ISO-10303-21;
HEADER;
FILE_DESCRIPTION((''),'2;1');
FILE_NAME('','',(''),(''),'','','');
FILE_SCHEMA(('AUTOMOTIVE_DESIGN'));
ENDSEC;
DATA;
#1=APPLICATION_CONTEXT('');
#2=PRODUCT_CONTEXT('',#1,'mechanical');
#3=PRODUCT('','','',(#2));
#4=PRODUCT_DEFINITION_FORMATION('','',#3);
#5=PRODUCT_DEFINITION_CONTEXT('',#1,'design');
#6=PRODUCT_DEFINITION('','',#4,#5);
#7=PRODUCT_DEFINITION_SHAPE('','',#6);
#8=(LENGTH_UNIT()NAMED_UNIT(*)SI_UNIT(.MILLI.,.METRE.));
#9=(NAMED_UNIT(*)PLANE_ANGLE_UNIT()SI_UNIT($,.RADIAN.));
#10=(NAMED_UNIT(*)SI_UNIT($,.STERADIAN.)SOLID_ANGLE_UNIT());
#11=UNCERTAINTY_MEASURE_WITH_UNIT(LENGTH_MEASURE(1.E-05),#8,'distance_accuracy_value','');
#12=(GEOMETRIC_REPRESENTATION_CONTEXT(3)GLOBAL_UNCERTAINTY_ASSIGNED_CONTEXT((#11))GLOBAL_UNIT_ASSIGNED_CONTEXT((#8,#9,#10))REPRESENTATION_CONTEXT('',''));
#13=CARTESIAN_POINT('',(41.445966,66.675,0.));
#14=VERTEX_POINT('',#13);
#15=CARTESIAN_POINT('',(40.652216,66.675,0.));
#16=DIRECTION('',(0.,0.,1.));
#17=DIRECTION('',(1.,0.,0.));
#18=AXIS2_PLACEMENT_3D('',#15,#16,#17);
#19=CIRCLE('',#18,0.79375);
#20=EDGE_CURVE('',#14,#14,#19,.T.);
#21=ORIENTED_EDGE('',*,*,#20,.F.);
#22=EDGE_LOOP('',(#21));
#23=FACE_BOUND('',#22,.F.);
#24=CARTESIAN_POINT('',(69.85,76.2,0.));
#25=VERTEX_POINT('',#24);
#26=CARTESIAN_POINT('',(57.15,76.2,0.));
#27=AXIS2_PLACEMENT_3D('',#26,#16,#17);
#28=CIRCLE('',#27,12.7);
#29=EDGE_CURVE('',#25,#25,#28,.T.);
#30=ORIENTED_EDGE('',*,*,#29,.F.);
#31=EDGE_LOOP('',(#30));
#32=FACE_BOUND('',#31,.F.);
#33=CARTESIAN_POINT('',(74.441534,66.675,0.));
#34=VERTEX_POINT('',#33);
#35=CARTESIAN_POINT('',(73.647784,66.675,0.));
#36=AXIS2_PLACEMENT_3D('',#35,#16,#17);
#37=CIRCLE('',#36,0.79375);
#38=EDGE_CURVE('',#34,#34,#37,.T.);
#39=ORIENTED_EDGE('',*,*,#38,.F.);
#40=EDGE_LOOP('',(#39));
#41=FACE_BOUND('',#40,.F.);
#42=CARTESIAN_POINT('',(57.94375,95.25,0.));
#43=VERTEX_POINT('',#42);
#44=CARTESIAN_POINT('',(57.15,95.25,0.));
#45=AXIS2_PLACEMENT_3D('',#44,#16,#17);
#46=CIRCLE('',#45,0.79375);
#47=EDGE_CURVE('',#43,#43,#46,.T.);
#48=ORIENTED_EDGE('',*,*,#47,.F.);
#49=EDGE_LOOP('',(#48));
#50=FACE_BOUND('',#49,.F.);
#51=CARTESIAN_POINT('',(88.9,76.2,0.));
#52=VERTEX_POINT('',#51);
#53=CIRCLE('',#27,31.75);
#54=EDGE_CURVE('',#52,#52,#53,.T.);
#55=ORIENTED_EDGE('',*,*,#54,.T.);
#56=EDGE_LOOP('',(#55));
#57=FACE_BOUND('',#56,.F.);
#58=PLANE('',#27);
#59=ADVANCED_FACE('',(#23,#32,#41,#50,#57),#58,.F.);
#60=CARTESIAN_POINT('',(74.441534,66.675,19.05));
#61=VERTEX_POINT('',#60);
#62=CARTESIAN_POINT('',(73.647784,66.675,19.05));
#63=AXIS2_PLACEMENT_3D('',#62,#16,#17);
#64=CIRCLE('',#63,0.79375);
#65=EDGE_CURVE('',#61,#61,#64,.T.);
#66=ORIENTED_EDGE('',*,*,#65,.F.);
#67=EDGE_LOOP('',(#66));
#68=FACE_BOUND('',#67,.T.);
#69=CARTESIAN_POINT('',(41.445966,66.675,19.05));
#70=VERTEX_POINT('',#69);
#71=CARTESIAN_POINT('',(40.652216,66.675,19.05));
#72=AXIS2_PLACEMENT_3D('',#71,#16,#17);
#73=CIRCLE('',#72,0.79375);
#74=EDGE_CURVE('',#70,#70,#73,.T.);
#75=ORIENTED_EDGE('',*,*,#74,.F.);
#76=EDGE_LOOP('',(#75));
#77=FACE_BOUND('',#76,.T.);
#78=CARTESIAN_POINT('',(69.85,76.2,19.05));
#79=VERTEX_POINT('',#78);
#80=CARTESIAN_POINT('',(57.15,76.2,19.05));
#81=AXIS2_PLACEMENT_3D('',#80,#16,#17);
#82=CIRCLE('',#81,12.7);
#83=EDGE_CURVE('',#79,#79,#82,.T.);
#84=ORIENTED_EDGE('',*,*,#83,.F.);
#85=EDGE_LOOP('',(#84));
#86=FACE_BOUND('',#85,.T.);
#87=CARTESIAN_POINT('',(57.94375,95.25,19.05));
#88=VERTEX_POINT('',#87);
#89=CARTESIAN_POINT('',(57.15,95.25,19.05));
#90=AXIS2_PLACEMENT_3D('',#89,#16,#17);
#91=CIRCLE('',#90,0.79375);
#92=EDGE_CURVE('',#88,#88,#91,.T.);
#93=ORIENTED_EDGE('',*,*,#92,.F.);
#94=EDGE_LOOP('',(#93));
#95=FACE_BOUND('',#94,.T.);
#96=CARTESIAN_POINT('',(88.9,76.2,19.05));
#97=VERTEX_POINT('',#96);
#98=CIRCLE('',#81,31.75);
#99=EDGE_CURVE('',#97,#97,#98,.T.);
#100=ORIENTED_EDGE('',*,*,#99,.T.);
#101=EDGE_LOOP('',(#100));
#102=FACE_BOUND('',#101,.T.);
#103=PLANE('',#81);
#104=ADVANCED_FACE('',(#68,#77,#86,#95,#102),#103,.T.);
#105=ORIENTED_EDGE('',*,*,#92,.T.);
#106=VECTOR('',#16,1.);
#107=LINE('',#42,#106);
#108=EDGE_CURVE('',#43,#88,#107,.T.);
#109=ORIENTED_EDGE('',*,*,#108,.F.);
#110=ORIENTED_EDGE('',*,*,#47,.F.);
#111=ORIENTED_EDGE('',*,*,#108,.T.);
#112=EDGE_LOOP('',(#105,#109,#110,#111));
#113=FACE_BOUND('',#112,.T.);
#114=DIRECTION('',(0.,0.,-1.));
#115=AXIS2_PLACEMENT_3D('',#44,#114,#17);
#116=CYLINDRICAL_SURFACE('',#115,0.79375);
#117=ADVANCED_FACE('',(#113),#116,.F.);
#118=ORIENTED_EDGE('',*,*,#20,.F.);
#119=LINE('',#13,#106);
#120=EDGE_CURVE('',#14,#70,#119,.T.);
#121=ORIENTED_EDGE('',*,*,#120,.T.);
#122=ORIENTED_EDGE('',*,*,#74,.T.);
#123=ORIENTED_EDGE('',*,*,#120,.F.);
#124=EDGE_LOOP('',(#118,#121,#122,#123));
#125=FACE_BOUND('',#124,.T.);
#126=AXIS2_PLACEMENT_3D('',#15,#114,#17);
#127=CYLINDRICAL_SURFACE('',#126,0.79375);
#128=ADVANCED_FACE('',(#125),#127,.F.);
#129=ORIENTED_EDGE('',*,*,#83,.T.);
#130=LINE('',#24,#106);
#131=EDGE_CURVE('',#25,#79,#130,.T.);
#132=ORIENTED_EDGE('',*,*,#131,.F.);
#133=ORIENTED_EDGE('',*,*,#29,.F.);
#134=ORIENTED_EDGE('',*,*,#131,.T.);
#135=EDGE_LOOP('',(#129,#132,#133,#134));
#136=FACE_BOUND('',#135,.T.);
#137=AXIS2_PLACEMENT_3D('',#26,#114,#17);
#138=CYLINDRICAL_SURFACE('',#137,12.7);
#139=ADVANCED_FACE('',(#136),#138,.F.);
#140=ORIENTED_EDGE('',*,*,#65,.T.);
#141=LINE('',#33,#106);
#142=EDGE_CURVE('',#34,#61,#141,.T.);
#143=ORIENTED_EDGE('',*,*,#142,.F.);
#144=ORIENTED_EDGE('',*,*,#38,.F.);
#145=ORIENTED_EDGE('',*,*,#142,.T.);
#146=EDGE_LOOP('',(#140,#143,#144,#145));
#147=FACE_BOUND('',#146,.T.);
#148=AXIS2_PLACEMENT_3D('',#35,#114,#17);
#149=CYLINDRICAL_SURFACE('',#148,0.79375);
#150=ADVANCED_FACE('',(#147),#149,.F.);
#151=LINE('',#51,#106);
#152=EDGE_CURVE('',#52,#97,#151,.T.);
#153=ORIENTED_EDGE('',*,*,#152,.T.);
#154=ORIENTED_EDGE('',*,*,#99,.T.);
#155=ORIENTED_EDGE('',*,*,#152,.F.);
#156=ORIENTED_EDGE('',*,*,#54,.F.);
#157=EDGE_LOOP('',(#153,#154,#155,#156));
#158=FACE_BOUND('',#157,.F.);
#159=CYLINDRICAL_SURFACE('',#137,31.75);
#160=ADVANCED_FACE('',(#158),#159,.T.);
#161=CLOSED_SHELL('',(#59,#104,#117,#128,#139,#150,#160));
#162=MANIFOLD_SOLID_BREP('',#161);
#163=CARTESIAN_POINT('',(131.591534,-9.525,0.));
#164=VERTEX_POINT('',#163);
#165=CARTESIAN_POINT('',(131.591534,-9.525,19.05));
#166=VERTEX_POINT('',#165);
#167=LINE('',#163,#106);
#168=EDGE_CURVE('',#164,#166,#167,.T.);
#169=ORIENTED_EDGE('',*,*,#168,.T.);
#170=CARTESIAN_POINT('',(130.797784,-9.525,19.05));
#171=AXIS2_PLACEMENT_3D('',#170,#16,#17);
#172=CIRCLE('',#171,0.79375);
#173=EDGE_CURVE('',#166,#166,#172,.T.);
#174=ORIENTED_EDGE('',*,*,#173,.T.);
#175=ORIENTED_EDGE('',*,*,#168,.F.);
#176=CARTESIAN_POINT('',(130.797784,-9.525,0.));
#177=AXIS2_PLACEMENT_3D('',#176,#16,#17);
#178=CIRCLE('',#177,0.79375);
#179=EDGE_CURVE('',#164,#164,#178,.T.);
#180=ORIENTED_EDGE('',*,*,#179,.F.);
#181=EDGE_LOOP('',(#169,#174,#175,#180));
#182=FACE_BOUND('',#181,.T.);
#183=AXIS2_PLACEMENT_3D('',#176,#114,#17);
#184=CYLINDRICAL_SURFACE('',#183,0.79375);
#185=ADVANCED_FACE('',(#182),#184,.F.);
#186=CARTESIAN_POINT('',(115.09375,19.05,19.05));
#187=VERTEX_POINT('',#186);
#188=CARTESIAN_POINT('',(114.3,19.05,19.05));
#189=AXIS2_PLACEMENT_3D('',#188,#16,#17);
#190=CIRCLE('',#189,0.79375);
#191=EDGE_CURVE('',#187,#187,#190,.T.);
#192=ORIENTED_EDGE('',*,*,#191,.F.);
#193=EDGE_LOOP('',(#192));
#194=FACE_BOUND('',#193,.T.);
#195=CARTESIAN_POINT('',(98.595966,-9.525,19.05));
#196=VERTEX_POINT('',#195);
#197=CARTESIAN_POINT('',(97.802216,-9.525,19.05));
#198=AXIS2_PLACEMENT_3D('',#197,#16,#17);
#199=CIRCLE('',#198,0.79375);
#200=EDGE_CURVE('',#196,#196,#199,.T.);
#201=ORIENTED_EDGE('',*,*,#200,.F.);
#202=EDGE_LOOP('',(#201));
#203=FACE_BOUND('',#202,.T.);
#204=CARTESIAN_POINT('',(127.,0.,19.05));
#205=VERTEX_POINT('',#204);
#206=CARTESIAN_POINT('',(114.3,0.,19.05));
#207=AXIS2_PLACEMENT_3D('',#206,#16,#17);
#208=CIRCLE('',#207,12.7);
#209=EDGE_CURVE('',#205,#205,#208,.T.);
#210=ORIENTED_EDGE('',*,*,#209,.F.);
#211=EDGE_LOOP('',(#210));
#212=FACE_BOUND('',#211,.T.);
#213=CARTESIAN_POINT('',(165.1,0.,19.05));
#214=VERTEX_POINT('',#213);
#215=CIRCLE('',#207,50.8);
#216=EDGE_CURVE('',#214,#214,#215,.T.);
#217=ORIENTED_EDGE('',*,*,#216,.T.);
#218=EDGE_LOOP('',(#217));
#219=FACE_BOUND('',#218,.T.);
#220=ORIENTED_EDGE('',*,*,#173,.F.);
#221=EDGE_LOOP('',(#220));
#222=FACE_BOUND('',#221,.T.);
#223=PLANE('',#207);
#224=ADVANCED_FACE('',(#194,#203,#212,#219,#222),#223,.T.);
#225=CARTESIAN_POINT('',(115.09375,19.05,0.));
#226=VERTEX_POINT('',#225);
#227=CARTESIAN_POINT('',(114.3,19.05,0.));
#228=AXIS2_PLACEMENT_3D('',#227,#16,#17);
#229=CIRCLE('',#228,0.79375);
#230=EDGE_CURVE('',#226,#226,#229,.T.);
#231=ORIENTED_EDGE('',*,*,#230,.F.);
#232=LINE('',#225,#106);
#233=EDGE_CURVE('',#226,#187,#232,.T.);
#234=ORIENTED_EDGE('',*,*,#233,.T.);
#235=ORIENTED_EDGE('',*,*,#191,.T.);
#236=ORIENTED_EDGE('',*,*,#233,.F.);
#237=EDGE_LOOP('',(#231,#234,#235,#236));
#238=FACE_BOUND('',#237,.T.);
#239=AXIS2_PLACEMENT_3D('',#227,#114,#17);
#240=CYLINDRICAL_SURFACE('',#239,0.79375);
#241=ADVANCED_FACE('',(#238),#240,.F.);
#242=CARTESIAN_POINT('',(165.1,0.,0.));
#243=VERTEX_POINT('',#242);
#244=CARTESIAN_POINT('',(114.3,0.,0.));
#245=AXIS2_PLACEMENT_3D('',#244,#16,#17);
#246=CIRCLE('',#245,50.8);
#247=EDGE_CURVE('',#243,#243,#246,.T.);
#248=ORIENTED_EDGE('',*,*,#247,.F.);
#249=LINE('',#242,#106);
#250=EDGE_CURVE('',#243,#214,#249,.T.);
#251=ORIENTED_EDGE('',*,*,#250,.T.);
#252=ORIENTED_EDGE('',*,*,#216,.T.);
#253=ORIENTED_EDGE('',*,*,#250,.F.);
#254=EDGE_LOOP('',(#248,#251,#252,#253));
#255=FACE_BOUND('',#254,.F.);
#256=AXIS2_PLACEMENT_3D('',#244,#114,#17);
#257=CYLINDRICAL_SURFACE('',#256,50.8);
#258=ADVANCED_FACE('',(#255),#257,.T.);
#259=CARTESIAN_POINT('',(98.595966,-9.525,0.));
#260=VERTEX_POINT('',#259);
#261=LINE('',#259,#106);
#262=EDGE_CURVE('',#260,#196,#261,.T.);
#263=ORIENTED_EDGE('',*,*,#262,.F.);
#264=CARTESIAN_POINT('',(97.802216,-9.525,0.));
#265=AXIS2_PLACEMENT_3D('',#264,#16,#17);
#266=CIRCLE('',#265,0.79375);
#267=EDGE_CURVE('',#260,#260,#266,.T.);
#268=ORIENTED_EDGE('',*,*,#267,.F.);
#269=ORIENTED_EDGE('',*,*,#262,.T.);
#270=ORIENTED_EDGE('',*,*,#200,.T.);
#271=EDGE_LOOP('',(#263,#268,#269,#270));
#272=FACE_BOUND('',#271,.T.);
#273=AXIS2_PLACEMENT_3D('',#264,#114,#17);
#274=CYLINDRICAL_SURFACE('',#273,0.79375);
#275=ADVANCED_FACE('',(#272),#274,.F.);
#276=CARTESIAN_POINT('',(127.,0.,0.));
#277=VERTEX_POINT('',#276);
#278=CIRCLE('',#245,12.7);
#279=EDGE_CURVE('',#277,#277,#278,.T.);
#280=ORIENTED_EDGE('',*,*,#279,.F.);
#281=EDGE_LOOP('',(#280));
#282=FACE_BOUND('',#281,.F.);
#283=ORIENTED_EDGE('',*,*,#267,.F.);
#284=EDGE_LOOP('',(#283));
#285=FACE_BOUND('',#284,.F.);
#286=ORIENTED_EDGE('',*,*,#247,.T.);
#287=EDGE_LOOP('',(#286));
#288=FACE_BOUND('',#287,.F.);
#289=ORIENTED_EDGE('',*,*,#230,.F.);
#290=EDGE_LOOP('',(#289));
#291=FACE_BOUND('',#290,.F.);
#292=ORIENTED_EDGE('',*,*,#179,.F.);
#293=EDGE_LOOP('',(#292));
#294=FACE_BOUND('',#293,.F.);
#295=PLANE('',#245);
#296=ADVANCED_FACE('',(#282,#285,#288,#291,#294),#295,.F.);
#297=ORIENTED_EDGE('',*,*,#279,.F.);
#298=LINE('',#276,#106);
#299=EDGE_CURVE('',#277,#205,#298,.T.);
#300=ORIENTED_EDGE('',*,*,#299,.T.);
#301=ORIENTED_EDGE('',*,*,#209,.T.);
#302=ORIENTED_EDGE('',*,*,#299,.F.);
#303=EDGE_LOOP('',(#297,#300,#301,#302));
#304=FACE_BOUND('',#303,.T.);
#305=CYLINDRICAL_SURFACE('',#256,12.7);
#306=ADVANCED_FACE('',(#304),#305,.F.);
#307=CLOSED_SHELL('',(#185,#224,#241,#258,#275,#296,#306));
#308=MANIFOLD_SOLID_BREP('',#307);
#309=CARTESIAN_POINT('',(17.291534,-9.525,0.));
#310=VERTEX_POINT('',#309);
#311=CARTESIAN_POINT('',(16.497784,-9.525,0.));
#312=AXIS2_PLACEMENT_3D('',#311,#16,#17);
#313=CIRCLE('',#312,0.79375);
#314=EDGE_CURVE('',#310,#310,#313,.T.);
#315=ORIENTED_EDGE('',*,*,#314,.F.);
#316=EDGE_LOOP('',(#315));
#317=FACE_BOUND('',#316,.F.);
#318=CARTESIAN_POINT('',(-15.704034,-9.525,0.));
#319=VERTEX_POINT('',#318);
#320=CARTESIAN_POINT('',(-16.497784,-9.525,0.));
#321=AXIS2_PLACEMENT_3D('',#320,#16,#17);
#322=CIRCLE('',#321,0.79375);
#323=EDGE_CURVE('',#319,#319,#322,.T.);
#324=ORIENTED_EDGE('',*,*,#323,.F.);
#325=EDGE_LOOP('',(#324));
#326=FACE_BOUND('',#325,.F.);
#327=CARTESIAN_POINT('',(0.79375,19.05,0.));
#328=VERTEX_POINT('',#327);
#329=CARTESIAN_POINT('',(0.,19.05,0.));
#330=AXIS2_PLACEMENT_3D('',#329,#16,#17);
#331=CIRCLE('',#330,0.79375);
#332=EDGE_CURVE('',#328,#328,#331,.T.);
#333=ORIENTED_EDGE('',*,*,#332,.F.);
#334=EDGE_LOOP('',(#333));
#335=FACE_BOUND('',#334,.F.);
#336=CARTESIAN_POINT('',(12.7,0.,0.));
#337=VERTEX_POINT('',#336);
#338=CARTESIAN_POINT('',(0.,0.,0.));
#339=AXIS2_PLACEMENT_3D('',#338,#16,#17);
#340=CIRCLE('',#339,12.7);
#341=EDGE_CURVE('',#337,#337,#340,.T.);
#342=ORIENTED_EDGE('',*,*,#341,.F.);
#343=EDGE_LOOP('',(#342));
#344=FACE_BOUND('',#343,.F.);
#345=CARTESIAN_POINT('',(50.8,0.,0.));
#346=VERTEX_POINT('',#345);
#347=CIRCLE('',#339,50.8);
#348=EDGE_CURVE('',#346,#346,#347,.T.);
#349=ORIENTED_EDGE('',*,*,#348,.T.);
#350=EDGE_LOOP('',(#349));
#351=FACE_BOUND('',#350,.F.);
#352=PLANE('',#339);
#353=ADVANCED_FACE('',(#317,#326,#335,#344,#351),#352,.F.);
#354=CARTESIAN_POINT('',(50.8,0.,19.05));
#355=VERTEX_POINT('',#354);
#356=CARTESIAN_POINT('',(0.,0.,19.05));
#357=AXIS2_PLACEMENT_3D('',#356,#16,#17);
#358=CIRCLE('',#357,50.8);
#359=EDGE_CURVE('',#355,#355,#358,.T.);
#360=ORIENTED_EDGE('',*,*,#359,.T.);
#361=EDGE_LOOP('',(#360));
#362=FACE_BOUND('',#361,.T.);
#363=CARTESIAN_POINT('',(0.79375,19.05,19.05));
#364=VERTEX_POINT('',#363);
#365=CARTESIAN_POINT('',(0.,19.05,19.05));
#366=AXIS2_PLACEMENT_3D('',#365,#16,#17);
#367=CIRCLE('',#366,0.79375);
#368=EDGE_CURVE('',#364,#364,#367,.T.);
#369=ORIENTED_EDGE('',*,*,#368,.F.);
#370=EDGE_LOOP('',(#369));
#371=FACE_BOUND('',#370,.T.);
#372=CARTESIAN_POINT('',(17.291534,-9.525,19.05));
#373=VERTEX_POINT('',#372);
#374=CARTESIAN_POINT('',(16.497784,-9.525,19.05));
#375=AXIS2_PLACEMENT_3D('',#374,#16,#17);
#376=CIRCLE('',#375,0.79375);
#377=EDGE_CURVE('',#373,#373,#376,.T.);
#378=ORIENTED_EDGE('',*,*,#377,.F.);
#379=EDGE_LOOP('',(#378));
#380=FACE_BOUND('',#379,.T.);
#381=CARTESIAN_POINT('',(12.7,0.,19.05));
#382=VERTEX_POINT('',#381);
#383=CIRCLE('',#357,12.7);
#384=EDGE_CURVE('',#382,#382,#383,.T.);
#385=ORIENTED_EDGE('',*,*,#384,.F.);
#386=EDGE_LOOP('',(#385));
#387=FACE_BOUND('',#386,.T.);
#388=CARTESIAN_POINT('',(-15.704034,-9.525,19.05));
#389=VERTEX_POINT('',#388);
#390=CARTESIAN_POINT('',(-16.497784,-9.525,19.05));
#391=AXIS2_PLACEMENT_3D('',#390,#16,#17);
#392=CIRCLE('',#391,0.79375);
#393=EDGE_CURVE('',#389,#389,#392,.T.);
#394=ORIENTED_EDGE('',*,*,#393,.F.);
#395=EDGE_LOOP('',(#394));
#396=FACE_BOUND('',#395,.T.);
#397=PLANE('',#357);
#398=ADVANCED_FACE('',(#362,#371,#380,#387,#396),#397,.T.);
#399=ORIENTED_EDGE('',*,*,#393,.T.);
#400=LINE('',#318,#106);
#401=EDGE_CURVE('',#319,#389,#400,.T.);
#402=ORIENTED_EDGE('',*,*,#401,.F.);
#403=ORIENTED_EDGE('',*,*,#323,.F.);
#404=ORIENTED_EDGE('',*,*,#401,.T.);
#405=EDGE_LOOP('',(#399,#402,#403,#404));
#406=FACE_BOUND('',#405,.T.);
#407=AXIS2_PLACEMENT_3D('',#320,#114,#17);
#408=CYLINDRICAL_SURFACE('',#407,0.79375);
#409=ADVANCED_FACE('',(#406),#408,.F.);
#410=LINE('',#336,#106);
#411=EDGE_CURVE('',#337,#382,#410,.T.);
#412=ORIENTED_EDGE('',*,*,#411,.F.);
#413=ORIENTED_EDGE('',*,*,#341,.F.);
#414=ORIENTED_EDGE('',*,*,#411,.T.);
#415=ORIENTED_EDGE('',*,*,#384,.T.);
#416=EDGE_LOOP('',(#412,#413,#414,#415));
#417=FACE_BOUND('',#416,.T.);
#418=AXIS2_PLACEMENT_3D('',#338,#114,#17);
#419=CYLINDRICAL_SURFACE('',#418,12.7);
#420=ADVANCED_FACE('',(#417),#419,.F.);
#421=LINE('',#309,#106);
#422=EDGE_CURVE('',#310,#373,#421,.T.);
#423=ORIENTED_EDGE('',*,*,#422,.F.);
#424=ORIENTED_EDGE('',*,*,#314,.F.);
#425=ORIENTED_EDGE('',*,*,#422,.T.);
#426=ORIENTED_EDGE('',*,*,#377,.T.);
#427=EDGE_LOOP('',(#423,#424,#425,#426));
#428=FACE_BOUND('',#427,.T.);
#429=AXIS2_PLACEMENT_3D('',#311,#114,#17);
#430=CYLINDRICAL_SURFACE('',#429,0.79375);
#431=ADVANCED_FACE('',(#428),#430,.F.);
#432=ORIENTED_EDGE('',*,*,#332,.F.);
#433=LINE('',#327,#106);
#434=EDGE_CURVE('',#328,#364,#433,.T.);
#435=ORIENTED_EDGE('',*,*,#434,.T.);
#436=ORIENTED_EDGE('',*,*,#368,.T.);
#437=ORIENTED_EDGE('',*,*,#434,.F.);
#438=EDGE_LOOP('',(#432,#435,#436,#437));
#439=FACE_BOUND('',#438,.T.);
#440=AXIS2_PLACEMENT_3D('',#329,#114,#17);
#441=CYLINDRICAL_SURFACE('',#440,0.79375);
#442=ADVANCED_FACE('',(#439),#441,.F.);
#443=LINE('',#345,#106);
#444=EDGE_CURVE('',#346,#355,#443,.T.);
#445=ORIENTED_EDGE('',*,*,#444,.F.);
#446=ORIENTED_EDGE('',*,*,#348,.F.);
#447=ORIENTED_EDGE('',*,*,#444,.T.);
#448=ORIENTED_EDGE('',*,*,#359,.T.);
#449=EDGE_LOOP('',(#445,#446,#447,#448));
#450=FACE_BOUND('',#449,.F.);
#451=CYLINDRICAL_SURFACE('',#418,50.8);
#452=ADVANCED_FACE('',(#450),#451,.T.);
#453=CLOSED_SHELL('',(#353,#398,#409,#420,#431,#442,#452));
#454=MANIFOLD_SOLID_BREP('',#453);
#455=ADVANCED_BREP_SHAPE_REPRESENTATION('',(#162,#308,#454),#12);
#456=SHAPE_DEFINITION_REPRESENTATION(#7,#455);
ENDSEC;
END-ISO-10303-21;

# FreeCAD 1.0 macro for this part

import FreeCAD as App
import Part
import Sketcher
from FreeCAD import Vector
Q = App.Units.Quantity

doc = App.newDocument("Part")
body = doc.addObject("PartDesign::Body", "Body")
body.AllowCompound = True

# Sketch on XY plane
sketch1 = body.newObject("Sketcher::SketchObject", "Sketch")
sketch1.AttachmentSupport = (doc.getObject("XY_Plane"), [""])
sketch1.MapMode = "FlatFace"
sketch1.addGeometry([
    Part.Circle(Vector(0, 0, 0), Vector(0, 0, 1), 50.8),  # 0
    Part.Circle(Vector(-16.5, -9.5, 0), Vector(0, 0, 1), 0.8),  # 1
    Part.Circle(Vector(16.5, -9.5, 0), Vector(0, 0, 1), 0.8),  # 2
    Part.Circle(Vector(0, 0, 0), Vector(0, 0, 1), 12.7),  # 3
    Part.Circle(Vector(0, 19.1, 0), Vector(0, 0, 1), 0.8),  # 4
    Part.Circle(Vector(114.3, 0, 0), Vector(0, 0, 1), 50.8),  # 5
    Part.Circle(Vector(97.8, -9.5, 0), Vector(0, 0, 1), 0.8),  # 6
    Part.Circle(Vector(114.3, 0, 0), Vector(0, 0, 1), 12.7),  # 7
    Part.Circle(Vector(130.8, -9.5, 0), Vector(0, 0, 1), 0.8),  # 8
    Part.Circle(Vector(114.3, 19.1, 0), Vector(0, 0, 1), 0.8),  # 9
    Part.Circle(Vector(57.1, 76.2, 0), Vector(0, 0, 1), 31.8),  # 10
    Part.Circle(Vector(40.7, 66.7, 0), Vector(0, 0, 1), 0.8),  # 11
    Part.Circle(Vector(57.1, 76.2, 0), Vector(0, 0, 1), 12.7),  # 12
    Part.Circle(Vector(73.6, 66.7, 0), Vector(0, 0, 1), 0.8),  # 13
    Part.Circle(Vector(57.1, 95.2, 0), Vector(0, 0, 1), 0.8),  # 14
], False)
sketch1.addConstraint([
    Sketcher.Constraint("Coincident", 0, 3, -1, 1),
    Sketcher.Constraint("Coincident", 3, 3, -1, 1),
    Sketcher.Constraint("Coincident", 7, 3, 5, 3),
    Sketcher.Constraint("Coincident", 12, 3, 10, 3),
    Sketcher.Constraint("Equal", 1, 2),
    Sketcher.Constraint("Equal", 2, 4),
    Sketcher.Constraint("Equal", 0, 5),
    Sketcher.Constraint("Equal", 4, 6),
    Sketcher.Constraint("Equal", 3, 7),
    Sketcher.Constraint("Equal", 6, 8),
    Sketcher.Constraint("Equal", 8, 9),
    Sketcher.Constraint("Equal", 9, 11),
    Sketcher.Constraint("Equal", 7, 12),
    Sketcher.Constraint("Equal", 11, 13),
    Sketcher.Constraint("Equal", 13, 14),
    Sketcher.Constraint("Symmetric", 1, 3, 2, 3, -2),
    Sketcher.Constraint("PointOnObject", 4, 3, -2),
    Sketcher.Constraint("PointOnObject", 5, 3, -1),
    Sketcher.Constraint("Horizontal", 2, 3, 6, 3),
    Sketcher.Constraint("Horizontal", 6, 3, 8, 3),
    Sketcher.Constraint("Horizontal", 4, 3, 9, 3),
    Sketcher.Constraint("Horizontal", 11, 3, 13, 3),
    Sketcher.Constraint("Vertical", 7, 3, 9, 3),
    Sketcher.Constraint("Vertical", 12, 3, 14, 3),
    Sketcher.Constraint("Diameter", 0, Q("4 in")),
    Sketcher.Constraint("Diameter", 3, Q("1 in")),
    Sketcher.Constraint("Diameter", 10, Q("2.5 in")),
    Sketcher.Constraint("Diameter", 1, Q("0.0625 in")),
    Sketcher.Constraint("DistanceY", -1, 1, 10, 3, Q("3 in")),
    Sketcher.Constraint("DistanceY", 2, 3, 11, 3, Q("3 in")),
    Sketcher.Constraint("DistanceY", 4, 3, 14, 3, Q("3 in")),
    Sketcher.Constraint("DistanceX", -1, 1, 5, 3, Q("4.5 in")),
    Sketcher.Constraint("DistanceX", 2, 3, 8, 3, Q("4.5 in")),
    Sketcher.Constraint("DistanceY", -1, 1, 4, 3, Q("0.75 in")),
    Sketcher.Constraint("DistanceX", -1, 1, 10, 3, Q("2.25 in")),
    Sketcher.Constraint("DistanceY", 1, 3, -1, 1, Q("0.375 in")),
    Sketcher.Constraint("DistanceX", 6, 3, 8, 3, 32.995568),
    Sketcher.Constraint("DistanceX", 1, 3, -1, 1, 16.497784),
    Sketcher.Constraint("DistanceX", -1, 1, 11, 3, 40.652216),
    Sketcher.Constraint("DistanceX", -1, 1, 13, 3, 73.647784),
])
pad1 = body.newObject("PartDesign::Pad", "Pad")
pad1.Profile = sketch1
pad1.Length = Q("0.75 in")

doc.recompute()
